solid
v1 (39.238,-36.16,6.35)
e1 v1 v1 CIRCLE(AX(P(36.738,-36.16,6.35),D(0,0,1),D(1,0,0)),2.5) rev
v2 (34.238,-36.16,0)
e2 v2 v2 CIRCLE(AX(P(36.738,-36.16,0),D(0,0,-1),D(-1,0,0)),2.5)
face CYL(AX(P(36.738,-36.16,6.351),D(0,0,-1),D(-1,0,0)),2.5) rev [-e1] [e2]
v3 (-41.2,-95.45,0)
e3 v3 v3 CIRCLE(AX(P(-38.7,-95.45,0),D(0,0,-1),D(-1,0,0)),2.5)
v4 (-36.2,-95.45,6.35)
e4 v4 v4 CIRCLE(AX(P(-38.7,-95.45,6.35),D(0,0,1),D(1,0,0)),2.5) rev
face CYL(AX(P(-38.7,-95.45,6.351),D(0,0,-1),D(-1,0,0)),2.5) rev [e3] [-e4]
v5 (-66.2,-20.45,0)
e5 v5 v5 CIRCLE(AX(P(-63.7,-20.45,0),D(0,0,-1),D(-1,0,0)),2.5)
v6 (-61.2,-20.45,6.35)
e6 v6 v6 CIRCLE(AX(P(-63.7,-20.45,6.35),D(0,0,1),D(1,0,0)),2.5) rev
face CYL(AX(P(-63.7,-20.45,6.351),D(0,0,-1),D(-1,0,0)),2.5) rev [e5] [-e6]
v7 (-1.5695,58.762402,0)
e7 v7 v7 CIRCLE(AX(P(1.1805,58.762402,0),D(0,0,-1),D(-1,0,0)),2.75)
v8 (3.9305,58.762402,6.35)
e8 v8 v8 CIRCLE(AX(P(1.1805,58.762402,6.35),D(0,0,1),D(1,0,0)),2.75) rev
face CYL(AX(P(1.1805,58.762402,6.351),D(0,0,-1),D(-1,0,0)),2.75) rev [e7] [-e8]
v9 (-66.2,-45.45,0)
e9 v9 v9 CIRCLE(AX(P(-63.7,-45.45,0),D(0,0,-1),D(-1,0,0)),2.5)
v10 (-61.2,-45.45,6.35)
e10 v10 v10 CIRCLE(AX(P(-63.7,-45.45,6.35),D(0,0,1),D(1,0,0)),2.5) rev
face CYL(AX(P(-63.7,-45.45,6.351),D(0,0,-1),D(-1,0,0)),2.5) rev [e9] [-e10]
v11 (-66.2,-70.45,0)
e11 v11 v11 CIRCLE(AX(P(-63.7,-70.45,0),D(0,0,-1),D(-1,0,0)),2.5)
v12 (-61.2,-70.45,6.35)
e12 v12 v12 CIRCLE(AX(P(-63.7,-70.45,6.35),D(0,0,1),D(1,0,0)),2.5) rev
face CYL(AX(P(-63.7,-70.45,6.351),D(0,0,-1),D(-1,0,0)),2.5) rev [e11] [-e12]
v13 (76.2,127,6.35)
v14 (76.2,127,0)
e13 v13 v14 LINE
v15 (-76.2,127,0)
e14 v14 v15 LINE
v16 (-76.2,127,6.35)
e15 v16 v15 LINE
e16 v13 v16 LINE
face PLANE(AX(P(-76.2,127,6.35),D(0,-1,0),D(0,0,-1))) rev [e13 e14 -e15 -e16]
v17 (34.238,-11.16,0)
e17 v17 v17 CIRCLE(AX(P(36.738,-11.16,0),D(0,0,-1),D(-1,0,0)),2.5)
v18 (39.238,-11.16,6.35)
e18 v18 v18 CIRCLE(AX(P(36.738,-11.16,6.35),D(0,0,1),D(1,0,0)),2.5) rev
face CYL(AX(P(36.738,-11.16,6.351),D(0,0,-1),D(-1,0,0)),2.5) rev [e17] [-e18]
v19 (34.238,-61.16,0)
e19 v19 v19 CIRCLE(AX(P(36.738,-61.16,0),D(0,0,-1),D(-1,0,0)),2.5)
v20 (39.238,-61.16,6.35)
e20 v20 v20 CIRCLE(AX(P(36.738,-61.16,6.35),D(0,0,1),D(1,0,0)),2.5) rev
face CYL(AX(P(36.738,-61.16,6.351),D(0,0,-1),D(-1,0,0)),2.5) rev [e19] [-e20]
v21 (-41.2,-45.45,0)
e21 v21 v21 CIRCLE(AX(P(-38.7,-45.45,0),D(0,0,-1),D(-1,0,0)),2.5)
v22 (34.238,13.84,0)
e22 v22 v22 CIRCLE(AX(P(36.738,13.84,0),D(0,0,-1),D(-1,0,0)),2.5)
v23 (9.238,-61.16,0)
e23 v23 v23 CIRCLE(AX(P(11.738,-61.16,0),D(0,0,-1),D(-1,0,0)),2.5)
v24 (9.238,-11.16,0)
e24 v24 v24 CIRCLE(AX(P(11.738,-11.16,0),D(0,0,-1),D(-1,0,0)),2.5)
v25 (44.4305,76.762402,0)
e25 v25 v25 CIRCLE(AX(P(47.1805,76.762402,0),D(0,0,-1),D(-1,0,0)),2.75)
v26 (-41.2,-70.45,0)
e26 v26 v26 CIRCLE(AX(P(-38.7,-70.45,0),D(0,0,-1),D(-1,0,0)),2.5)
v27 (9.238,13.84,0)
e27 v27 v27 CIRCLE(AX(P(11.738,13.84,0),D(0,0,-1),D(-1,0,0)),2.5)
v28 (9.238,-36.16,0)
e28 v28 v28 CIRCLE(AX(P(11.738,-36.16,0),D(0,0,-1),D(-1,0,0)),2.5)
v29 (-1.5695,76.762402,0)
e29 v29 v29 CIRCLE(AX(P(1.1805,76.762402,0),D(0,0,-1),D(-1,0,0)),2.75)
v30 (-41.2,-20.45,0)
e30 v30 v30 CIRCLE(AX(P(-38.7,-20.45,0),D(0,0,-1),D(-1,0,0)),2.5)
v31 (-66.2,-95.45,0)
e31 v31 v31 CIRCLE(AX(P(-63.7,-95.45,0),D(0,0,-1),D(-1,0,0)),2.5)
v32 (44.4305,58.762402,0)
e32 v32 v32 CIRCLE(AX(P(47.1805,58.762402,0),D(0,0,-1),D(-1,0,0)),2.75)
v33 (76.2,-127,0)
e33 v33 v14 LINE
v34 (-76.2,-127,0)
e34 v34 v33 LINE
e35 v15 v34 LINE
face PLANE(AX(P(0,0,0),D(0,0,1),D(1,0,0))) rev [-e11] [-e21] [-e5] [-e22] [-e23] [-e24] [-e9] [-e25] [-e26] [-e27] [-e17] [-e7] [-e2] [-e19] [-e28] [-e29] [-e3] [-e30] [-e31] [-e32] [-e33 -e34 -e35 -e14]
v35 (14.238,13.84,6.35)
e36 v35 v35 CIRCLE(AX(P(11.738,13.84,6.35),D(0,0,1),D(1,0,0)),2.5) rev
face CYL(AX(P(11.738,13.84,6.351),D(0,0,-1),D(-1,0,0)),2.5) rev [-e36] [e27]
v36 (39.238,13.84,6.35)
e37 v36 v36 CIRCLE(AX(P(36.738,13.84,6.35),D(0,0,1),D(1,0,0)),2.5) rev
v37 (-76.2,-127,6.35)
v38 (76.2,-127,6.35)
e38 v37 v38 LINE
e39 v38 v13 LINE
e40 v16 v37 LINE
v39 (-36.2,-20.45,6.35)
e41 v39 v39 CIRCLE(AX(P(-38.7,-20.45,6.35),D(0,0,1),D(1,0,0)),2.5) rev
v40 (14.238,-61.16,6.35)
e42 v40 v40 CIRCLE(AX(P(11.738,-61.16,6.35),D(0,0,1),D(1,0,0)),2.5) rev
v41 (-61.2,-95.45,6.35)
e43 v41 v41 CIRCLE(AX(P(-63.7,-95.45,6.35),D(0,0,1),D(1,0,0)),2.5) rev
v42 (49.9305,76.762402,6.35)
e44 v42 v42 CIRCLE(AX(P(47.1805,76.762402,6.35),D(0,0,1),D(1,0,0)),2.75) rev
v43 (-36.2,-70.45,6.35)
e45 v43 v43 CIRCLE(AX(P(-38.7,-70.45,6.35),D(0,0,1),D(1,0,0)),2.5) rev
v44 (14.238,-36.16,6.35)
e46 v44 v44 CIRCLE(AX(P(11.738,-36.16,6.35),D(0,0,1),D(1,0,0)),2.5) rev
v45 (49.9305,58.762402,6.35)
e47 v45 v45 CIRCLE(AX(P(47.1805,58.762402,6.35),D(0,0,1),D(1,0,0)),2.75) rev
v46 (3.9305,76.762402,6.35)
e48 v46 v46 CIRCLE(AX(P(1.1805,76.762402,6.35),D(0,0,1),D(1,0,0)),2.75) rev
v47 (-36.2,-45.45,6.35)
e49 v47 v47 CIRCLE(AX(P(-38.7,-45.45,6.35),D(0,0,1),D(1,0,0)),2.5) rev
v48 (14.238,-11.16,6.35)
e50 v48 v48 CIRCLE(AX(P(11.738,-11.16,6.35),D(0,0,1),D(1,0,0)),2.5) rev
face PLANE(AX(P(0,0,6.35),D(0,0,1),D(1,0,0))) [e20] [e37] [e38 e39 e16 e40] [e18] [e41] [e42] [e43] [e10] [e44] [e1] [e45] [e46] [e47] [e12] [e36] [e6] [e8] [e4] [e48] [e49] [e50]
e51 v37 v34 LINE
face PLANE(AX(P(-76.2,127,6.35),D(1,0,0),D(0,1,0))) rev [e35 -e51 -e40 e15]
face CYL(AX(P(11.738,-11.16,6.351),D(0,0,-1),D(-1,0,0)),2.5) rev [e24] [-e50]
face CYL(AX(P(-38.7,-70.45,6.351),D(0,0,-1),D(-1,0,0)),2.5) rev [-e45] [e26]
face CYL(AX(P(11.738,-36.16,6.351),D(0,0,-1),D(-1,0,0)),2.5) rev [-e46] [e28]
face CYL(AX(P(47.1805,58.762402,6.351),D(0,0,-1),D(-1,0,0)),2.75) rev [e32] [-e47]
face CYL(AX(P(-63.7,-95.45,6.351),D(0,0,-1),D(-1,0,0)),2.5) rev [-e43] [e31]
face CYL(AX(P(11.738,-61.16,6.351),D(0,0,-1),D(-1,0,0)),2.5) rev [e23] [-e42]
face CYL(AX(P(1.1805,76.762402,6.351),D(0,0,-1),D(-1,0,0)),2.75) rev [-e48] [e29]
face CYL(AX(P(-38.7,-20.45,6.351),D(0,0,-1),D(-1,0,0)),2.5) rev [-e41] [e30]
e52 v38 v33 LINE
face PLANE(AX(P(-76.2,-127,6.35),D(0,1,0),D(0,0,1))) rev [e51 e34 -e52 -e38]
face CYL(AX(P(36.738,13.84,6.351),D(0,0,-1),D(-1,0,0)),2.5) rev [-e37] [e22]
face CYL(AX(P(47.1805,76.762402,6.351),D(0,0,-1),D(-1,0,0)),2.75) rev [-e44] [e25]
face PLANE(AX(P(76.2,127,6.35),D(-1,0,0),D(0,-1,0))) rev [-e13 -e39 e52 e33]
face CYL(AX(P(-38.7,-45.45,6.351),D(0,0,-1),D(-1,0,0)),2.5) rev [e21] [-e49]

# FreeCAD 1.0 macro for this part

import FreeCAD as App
import Part
import Sketcher

V = App.Vector
Q = App.Units.Quantity

doc = App.newDocument("Part")
body = doc.addObject("PartDesign::Body", "Body")

# Sketch on XY plane
sketch1 = body.newObject("Sketcher::SketchObject", "Sketch")
sketch1.AttachmentSupport = (doc.getObject("XY_Plane"), [""])
sketch1.MapMode = "FlatFace"
sketch1.addGeometry([
    Part.LineSegment(V(-76, 127, 0), V(-76, -127, 0)),
    Part.LineSegment(V(-76, -127, 0), V(76, -127, 0)),
    Part.LineSegment(V(76, -127, 0), V(76, 127, 0)),
    Part.LineSegment(V(76, 127, 0), V(-76, 127, 0)),
], False)
sketch1.addConstraint([
    Sketcher.Constraint("Coincident", 0, 2, 1, 1),
    Sketcher.Constraint("Coincident", 1, 2, 2, 1),
    Sketcher.Constraint("Coincident", 2, 2, 3, 1),
    Sketcher.Constraint("Coincident", 3, 2, 0, 1),
    Sketcher.Constraint("Vertical", 0),
    Sketcher.Constraint("Horizontal", 1),
    Sketcher.Constraint("Vertical", 2),
    Sketcher.Constraint("Horizontal", 3),
    Sketcher.Constraint("Symmetric", 0, 2, 2, 2, -1, 1),
    Sketcher.Constraint("DistanceX", 1, 1, 1, 2, Q("6 in")),
    Sketcher.Constraint("DistanceY", 0, 2, 0, 1, Q("10 in")),
])
pad1 = body.newObject("PartDesign::Pad", "Pad")
pad1.Profile = sketch1
pad1.Length = Q("0.25 in")

# Sketch on XY plane
sketch2 = body.newObject("Sketcher::SketchObject", "Sketch001")
sketch2.AttachmentSupport = (doc.getObject("XY_Plane"), [""])
sketch2.MapMode = "FlatFace"
sketch2.addGeometry(Part.Circle(V(-63.7, -20.4, 0), V(0, 0, 1), 2.5), False)
sketch2.addConstraint([
    Sketcher.Constraint("Diameter", 0, Q("5 mm")),
    Sketcher.Constraint("DistanceX", 0, 3, -1, 1, Q("63.7 mm")),
    Sketcher.Constraint("DistanceY", 0, 3, -1, 1, Q("20.45 mm")),
])
pocket1 = body.newObject("PartDesign::Pocket", "Pocket")
pocket1.Profile = sketch2
pocket1.Type = "UpToFirst"
pocket1.Reversed = True

# Sketch on XY plane
sketch3 = body.newObject("Sketcher::SketchObject", "Sketch002")
sketch3.AttachmentSupport = (doc.getObject("XY_Plane"), [""])
sketch3.MapMode = "FlatFace"
sketch3.addGeometry(Part.Circle(V(-38.7, -20.4, 0), V(0, 0, 1), 2.5), False)
sketch3.addConstraint([
    Sketcher.Constraint("Diameter", 0, Q("5 mm")),
    Sketcher.Constraint("DistanceX", 0, 3, -1, 1, Q("38.7 mm")),
    Sketcher.Constraint("DistanceY", 0, 3, -1, 1, Q("20.45 mm")),
])
pocket2 = body.newObject("PartDesign::Pocket", "Pocket001")
pocket2.Profile = sketch3
pocket2.Type = "UpToFirst"
pocket2.Reversed = True

# Sketch on XY plane
sketch4 = body.newObject("Sketcher::SketchObject", "Sketch003")
sketch4.AttachmentSupport = (doc.getObject("XY_Plane"), [""])
sketch4.MapMode = "FlatFace"
sketch4.addGeometry(Part.Circle(V(-38.7, -45.5, 0), V(0, 0, 1), 2.5), False)
sketch4.addConstraint([
    Sketcher.Constraint("Diameter", 0, Q("5 mm")),
    Sketcher.Constraint("DistanceX", 0, 3, -1, 1, Q("38.7 mm")),
    Sketcher.Constraint("DistanceY", 0, 3, -1, 1, Q("45.45 mm")),
])
pocket3 = body.newObject("PartDesign::Pocket", "Pocket002")
pocket3.Profile = sketch4
pocket3.Type = "UpToFirst"
pocket3.Reversed = True

# Sketch on XY plane
sketch5 = body.newObject("Sketcher::SketchObject", "Sketch004")
sketch5.AttachmentSupport = (doc.getObject("XY_Plane"), [""])
sketch5.MapMode = "FlatFace"
sketch5.addGeometry(Part.Circle(V(-63.7, -45.5, 0), V(0, 0, 1), 2.5), False)
sketch5.addConstraint([
    Sketcher.Constraint("Diameter", 0, Q("5 mm")),
    Sketcher.Constraint("DistanceX", 0, 3, -1, 1, Q("63.7 mm")),
    Sketcher.Constraint("DistanceY", 0, 3, -1, 1, Q("45.45 mm")),
])
pocket4 = body.newObject("PartDesign::Pocket", "Pocket003")
pocket4.Profile = sketch5
pocket4.Type = "UpToFirst"
pocket4.Reversed = True

# Sketch on XY plane
sketch6 = body.newObject("Sketcher::SketchObject", "Sketch005")
sketch6.AttachmentSupport = (doc.getObject("XY_Plane"), [""])
sketch6.MapMode = "FlatFace"
sketch6.addGeometry(Part.Circle(V(-63.7, -70.5, 0), V(0, 0, 1), 2.5), False)
sketch6.addConstraint([
    Sketcher.Constraint("Diameter", 0, Q("5 mm")),
    Sketcher.Constraint("DistanceX", 0, 3, -1, 1, Q("63.7 mm")),
    Sketcher.Constraint("DistanceY", 0, 3, -1, 1, Q("70.45 mm")),
])
pocket5 = body.newObject("PartDesign::Pocket", "Pocket004")
pocket5.Profile = sketch6
pocket5.Type = "UpToFirst"
pocket5.Reversed = True

# Sketch on XY plane
sketch7 = body.newObject("Sketcher::SketchObject", "Sketch006")
sketch7.AttachmentSupport = (doc.getObject("XY_Plane"), [""])
sketch7.MapMode = "FlatFace"
sketch7.addGeometry(Part.Circle(V(-38.7, -70.5, 0), V(0, 0, 1), 2.5), False)
sketch7.addConstraint([
    Sketcher.Constraint("Diameter", 0, Q("5 mm")),
    Sketcher.Constraint("DistanceX", 0, 3, -1, 1, Q("38.7 mm")),
    Sketcher.Constraint("DistanceY", 0, 3, -1, 1, Q("70.45 mm")),
])
pocket6 = body.newObject("PartDesign::Pocket", "Pocket005")
pocket6.Profile = sketch7
pocket6.Type = "UpToFirst"
pocket6.Reversed = True

# Sketch on XY plane
sketch8 = body.newObject("Sketcher::SketchObject", "Sketch007")
sketch8.AttachmentSupport = (doc.getObject("XY_Plane"), [""])
sketch8.MapMode = "FlatFace"
sketch8.addGeometry(Part.Circle(V(-38.7, -95.5, 0), V(0, 0, 1), 2.5), False)
sketch8.addConstraint([
    Sketcher.Constraint("Diameter", 0, Q("5 mm")),
    Sketcher.Constraint("DistanceX", 0, 3, -1, 1, Q("38.7 mm")),
    Sketcher.Constraint("DistanceY", 0, 3, -1, 1, Q("95.45 mm")),
])
pocket7 = body.newObject("PartDesign::Pocket", "Pocket006")
pocket7.Profile = sketch8
pocket7.Type = "UpToFirst"
pocket7.Reversed = True

# Sketch on XY plane
sketch9 = body.newObject("Sketcher::SketchObject", "Sketch008")
sketch9.AttachmentSupport = (doc.getObject("XY_Plane"), [""])
sketch9.MapMode = "FlatFace"
sketch9.addGeometry(Part.Circle(V(-63.7, -95.5, 0), V(0, 0, 1), 2.5), False)
sketch9.addConstraint([
    Sketcher.Constraint("Diameter", 0, Q("5 mm")),
    Sketcher.Constraint("DistanceX", 0, 3, -1, 1, Q("63.7 mm")),
    Sketcher.Constraint("DistanceY", 0, 3, -1, 1, Q("95.45 mm")),
])
pocket8 = body.newObject("PartDesign::Pocket", "Pocket007")
pocket8.Profile = sketch9
pocket8.Type = "UpToFirst"
pocket8.Reversed = True

# Sketch on XY plane
sketch10 = body.newObject("Sketcher::SketchObject", "Sketch009")
sketch10.AttachmentSupport = (doc.getObject("XY_Plane"), [""])
sketch10.MapMode = "FlatFace"
sketch10.addGeometry(Part.Circle(V(11.7, -61.2, 0), V(0, 0, 1), 2.5), False)
sketch10.addConstraint([
    Sketcher.Constraint("Diameter", 0, Q("5 mm")),
    Sketcher.Constraint("DistanceX", -1, 1, 0, 3, Q("11.738 mm")),
    Sketcher.Constraint("DistanceY", 0, 3, -1, 1, Q("61.16 mm")),
])
pocket9 = body.newObject("PartDesign::Pocket", "Pocket008")
pocket9.Profile = sketch10
pocket9.Type = "UpToFirst"
pocket9.Reversed = True

# Sketch on XY plane
sketch11 = body.newObject("Sketcher::SketchObject", "Sketch010")
sketch11.AttachmentSupport = (doc.getObject("XY_Plane"), [""])
sketch11.MapMode = "FlatFace"
sketch11.addGeometry(Part.Circle(V(11.7, -36.2, 0), V(0, 0, 1), 2.5), False)
sketch11.addConstraint([
    Sketcher.Constraint("Diameter", 0, Q("5 mm")),
    Sketcher.Constraint("DistanceX", -1, 1, 0, 3, Q("11.738 mm")),
    Sketcher.Constraint("DistanceY", 0, 3, -1, 1, Q("36.16 mm")),
])
pocket10 = body.newObject("PartDesign::Pocket", "Pocket009")
pocket10.Profile = sketch11
pocket10.Type = "UpToFirst"
pocket10.Reversed = True

# Sketch on XY plane
sketch12 = body.newObject("Sketcher::SketchObject", "Sketch011")
sketch12.AttachmentSupport = (doc.getObject("XY_Plane"), [""])
sketch12.MapMode = "FlatFace"
sketch12.addGeometry(Part.Circle(V(36.7, -61.2, 0), V(0, 0, 1), 2.5), False)
sketch12.addConstraint([
    Sketcher.Constraint("Diameter", 0, Q("5 mm")),
    Sketcher.Constraint("DistanceX", -1, 1, 0, 3, Q("36.738 mm")),
    Sketcher.Constraint("DistanceY", 0, 3, -1, 1, Q("61.16 mm")),
])
pocket11 = body.newObject("PartDesign::Pocket", "Pocket010")
pocket11.Profile = sketch12
pocket11.Type = "UpToFirst"
pocket11.Reversed = True

# Sketch on XY plane
sketch13 = body.newObject("Sketcher::SketchObject", "Sketch012")
sketch13.AttachmentSupport = (doc.getObject("XY_Plane"), [""])
sketch13.MapMode = "FlatFace"
sketch13.addGeometry(Part.Circle(V(36.7, -36.2, 0), V(0, 0, 1), 2.5), False)
sketch13.addConstraint([
    Sketcher.Constraint("Diameter", 0, Q("5 mm")),
    Sketcher.Constraint("DistanceX", -1, 1, 0, 3, Q("36.738 mm")),
    Sketcher.Constraint("DistanceY", 0, 3, -1, 1, Q("36.16 mm")),
])
pocket12 = body.newObject("PartDesign::Pocket", "Pocket011")
pocket12.Profile = sketch13
pocket12.Type = "UpToFirst"
pocket12.Reversed = True

# Sketch on XY plane
sketch14 = body.newObject("Sketcher::SketchObject", "Sketch013")
sketch14.AttachmentSupport = (doc.getObject("XY_Plane"), [""])
sketch14.MapMode = "FlatFace"
sketch14.addGeometry(Part.Circle(V(11.7, -11.2, 0), V(0, 0, 1), 2.5), False)
sketch14.addConstraint([
    Sketcher.Constraint("Diameter", 0, Q("5 mm")),
    Sketcher.Constraint("DistanceX", -1, 1, 0, 3, Q("11.738 mm")),
    Sketcher.Constraint("DistanceY", 0, 3, -1, 1, Q("11.16 mm")),
])
pocket13 = body.newObject("PartDesign::Pocket", "Pocket012")
pocket13.Profile = sketch14
pocket13.Type = "UpToFirst"
pocket13.Reversed = True

# Sketch on XY plane
sketch15 = body.newObject("Sketcher::SketchObject", "Sketch014")
sketch15.AttachmentSupport = (doc.getObject("XY_Plane"), [""])
sketch15.MapMode = "FlatFace"
sketch15.addGeometry(Part.Circle(V(36.7, -11.2, 0), V(0, 0, 1), 2.5), False)
sketch15.addConstraint([
    Sketcher.Constraint("Diameter", 0, Q("5 mm")),
    Sketcher.Constraint("DistanceX", -1, 1, 0, 3, Q("36.738 mm")),
    Sketcher.Constraint("DistanceY", 0, 3, -1, 1, Q("11.16 mm")),
])
pocket14 = body.newObject("PartDesign::Pocket", "Pocket013")
pocket14.Profile = sketch15
pocket14.Type = "UpToFirst"
pocket14.Reversed = True

# Sketch on XY plane
sketch16 = body.newObject("Sketcher::SketchObject", "Sketch015")
sketch16.AttachmentSupport = (doc.getObject("XY_Plane"), [""])
sketch16.MapMode = "FlatFace"
sketch16.addGeometry(Part.Circle(V(36.7, 13.8, 0), V(0, 0, 1), 2.5), False)
sketch16.addConstraint([
    Sketcher.Constraint("Diameter", 0, Q("5 mm")),
    Sketcher.Constraint("DistanceX", -1, 1, 0, 3, Q("36.738 mm")),
    Sketcher.Constraint("DistanceY", -1, 1, 0, 3, Q("13.84 mm")),
])
pocket15 = body.newObject("PartDesign::Pocket", "Pocket014")
pocket15.Profile = sketch16
pocket15.Type = "UpToFirst"
pocket15.Reversed = True

# Sketch on XY plane
sketch17 = body.newObject("Sketcher::SketchObject", "Sketch016")
sketch17.AttachmentSupport = (doc.getObject("XY_Plane"), [""])
sketch17.MapMode = "FlatFace"
sketch17.addGeometry(Part.Circle(V(11.7, 13.8, 0), V(0, 0, 1), 2.5), False)
sketch17.addConstraint([
    Sketcher.Constraint("Diameter", 0, Q("5 mm")),
    Sketcher.Constraint("DistanceX", -1, 1, 0, 3, Q("11.738 mm")),
    Sketcher.Constraint("DistanceY", -1, 1, 0, 3, Q("13.84 mm")),
])
pocket16 = body.newObject("PartDesign::Pocket", "Pocket015")
pocket16.Profile = sketch17
pocket16.Type = "UpToFirst"
pocket16.Reversed = True

# Sketch on XY plane
sketch18 = body.newObject("Sketcher::SketchObject", "Sketch017")
sketch18.AttachmentSupport = (doc.getObject("XY_Plane"), [""])
sketch18.MapMode = "FlatFace"
sketch18.addGeometry(Part.Circle(V(47.2, 58.8, 0), V(0, 0, 1), 2.8), False)
sketch18.addConstraint([
    Sketcher.Constraint("Diameter", 0, Q("5.5 mm")),
    Sketcher.Constraint("DistanceX", -1, 1, 0, 3, Q("1.8575 in")),
    Sketcher.Constraint("DistanceY", -1, 1, 0, 3, Q("58.762402 mm")),
])
pocket17 = body.newObject("PartDesign::Pocket", "Pocket016")
pocket17.Profile = sketch18
pocket17.Type = "UpToFirst"
pocket17.Reversed = True

# Sketch on XY plane
sketch19 = body.newObject("Sketcher::SketchObject", "Sketch018")
sketch19.AttachmentSupport = (doc.getObject("XY_Plane"), [""])
sketch19.MapMode = "FlatFace"
sketch19.addGeometry(Part.Circle(V(1.2, 58.8, 0), V(0, 0, 1), 2.8), False)
sketch19.addConstraint([
    Sketcher.Constraint("Diameter", 0, Q("5.5 mm")),
    Sketcher.Constraint("DistanceX", -1, 1, 0, 3, Q("1.1805 mm")),
    Sketcher.Constraint("DistanceY", -1, 1, 0, 3, Q("58.762402 mm")),
])
pocket18 = body.newObject("PartDesign::Pocket", "Pocket017")
pocket18.Profile = sketch19
pocket18.Type = "UpToFirst"
pocket18.Reversed = True

# Sketch on XY plane
sketch20 = body.newObject("Sketcher::SketchObject", "Sketch019")
sketch20.AttachmentSupport = (doc.getObject("XY_Plane"), [""])
sketch20.MapMode = "FlatFace"
sketch20.addGeometry(Part.Circle(V(47.2, 76.8, 0), V(0, 0, 1), 2.8), False)
sketch20.addConstraint([
    Sketcher.Constraint("Diameter", 0, Q("5.5 mm")),
    Sketcher.Constraint("DistanceX", -1, 1, 0, 3, Q("1.8575 in")),
    Sketcher.Constraint("DistanceY", -1, 1, 0, 3, Q("76.762402 mm")),
])
pocket19 = body.newObject("PartDesign::Pocket", "Pocket018")
pocket19.Profile = sketch20
pocket19.Type = "UpToFirst"
pocket19.Reversed = True

# Sketch on XY plane
sketch21 = body.newObject("Sketcher::SketchObject", "Sketch020")
sketch21.AttachmentSupport = (doc.getObject("XY_Plane"), [""])
sketch21.MapMode = "FlatFace"
sketch21.addGeometry(Part.Circle(V(1.2, 76.8, 0), V(0, 0, 1), 2.8), False)
sketch21.addConstraint([
    Sketcher.Constraint("Diameter", 0, Q("5.5 mm")),
    Sketcher.Constraint("DistanceX", -1, 1, 0, 3, Q("1.1805 mm")),
    Sketcher.Constraint("DistanceY", -1, 1, 0, 3, Q("76.762402 mm")),
])
pocket20 = body.newObject("PartDesign::Pocket", "Pocket019")
pocket20.Profile = sketch21
pocket20.Type = "UpToFirst"
pocket20.Reversed = True

doc.recompute()
